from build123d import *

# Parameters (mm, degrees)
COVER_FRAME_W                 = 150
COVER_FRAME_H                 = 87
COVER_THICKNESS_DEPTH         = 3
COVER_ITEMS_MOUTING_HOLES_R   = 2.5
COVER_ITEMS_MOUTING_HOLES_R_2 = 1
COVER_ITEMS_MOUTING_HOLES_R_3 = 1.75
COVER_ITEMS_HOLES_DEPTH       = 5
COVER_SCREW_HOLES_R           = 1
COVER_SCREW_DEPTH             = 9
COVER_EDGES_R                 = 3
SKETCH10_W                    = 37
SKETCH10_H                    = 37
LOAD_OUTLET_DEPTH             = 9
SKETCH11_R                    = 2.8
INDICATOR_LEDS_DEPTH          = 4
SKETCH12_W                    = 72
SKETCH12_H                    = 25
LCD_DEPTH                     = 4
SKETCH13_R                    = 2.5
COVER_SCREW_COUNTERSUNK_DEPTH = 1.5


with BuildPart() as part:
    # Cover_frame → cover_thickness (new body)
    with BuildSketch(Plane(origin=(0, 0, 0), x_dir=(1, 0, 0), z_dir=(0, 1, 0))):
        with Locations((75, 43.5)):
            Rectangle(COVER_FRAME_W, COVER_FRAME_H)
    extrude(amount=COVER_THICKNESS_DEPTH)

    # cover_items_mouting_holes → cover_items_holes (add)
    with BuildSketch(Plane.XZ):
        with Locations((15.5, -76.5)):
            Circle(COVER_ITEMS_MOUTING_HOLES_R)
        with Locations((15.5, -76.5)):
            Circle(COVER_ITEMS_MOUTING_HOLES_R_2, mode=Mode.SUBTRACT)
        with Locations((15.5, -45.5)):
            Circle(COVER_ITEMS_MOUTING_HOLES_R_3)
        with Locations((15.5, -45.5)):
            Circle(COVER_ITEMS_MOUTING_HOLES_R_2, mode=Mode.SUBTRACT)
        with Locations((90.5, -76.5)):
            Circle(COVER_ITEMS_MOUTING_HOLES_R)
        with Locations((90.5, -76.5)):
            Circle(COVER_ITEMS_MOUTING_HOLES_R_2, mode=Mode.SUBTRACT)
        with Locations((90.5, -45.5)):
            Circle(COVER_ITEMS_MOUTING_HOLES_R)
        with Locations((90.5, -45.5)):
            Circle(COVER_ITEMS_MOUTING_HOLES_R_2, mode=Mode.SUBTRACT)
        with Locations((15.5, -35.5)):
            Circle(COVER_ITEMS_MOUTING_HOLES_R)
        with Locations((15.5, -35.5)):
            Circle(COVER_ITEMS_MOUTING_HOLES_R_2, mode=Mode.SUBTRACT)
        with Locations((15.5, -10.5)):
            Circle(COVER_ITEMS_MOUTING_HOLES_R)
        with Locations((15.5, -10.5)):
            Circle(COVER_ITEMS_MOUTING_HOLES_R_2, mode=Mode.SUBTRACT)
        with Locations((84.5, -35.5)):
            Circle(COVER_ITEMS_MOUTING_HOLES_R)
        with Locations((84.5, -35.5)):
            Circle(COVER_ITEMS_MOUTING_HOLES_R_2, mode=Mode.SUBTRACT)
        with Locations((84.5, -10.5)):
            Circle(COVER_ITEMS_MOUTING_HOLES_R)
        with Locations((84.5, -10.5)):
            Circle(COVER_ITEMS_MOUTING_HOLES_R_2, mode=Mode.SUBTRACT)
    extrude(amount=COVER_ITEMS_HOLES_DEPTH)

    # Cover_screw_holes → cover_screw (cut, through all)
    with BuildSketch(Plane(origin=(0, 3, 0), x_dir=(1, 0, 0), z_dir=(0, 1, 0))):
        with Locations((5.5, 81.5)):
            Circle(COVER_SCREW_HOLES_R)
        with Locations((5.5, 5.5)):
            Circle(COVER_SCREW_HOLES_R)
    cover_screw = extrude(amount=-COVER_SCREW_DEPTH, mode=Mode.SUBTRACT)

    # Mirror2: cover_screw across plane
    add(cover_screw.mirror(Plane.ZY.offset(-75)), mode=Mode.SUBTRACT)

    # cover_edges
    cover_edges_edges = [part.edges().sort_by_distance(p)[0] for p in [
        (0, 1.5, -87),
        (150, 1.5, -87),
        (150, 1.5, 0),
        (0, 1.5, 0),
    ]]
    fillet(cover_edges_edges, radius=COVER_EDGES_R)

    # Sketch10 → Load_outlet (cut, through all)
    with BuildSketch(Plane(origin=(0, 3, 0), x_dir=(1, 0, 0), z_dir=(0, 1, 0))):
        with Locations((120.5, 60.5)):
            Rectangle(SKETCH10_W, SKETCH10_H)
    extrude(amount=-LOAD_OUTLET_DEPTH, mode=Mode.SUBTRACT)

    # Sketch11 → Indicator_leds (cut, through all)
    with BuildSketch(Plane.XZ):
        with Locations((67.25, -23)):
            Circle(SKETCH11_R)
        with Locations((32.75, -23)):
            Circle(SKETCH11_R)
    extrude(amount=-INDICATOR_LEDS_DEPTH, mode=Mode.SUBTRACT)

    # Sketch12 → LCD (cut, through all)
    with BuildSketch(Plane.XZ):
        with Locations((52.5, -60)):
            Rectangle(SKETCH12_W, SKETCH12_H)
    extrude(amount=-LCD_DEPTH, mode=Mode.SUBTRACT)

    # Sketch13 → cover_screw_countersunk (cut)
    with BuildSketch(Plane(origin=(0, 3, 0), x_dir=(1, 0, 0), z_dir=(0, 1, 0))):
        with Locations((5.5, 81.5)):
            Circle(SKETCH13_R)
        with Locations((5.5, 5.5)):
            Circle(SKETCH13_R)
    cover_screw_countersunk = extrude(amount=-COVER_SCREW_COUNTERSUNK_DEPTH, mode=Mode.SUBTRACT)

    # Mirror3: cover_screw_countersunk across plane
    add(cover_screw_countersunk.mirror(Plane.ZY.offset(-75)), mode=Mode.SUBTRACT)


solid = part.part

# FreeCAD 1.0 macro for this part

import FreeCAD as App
import Part
import Sketcher


def edges_at(feature, points):
    """Names of the edges that pass closest to the given points."""
    edges = feature.Shape.Edges
    near = lambda p: min(range(len(edges)), key=lambda i: edges[i].distToShape(Part.Vertex(*p))[0])
    return sorted({f"Edge{near(p) + 1}" for p in points})


def add_polygon(sketch, points):
    """Adds a closed chain of lines whose ends are joined by coincident constraints."""
    first, n = sketch.GeometryCount, len(points)
    for a, b in zip(points, points[1:] + points[:1]):
        sketch.addGeometry(Part.LineSegment(App.Vector(*a, 0), App.Vector(*b, 0)), False)
    for i in range(n):
        sketch.addConstraint(Sketcher.Constraint("Coincident", first + i, 2, first + (i + 1) % n, 1))

doc = App.newDocument("Part")
body = doc.addObject("PartDesign::Body", "Body")

# Sketch on XZ plane
sketch1 = body.newObject("Sketcher::SketchObject", "Sketch")
sketch1.AttachmentSupport = (doc.getObject("XZ_Plane"), [""])
sketch1.MapMode = "FlatFace"
add_polygon(sketch1, [(0, -87), (0, 0), (150, 0), (150, -87)])  # lines 0-3
sketch1.addConstraint(Sketcher.Constraint("Vertical", 0))
sketch1.addConstraint(Sketcher.Constraint("Horizontal", 1))
sketch1.addConstraint(Sketcher.Constraint("Vertical", 2))
sketch1.addConstraint(Sketcher.Constraint("Horizontal", 3))
sketch1.addConstraint(Sketcher.Constraint("Coincident", 0, 2, -1, 1))
sketch1.addConstraint(Sketcher.Constraint("DistanceX", 1, 1, 1, 2, 150.0))
sketch1.addConstraint(Sketcher.Constraint("DistanceY", 0, 1, 0, 2, 87.0))
pad1 = body.newObject("PartDesign::Pad", "Pad")
pad1.Profile = sketch1
pad1.Length = 3
pad1.Reversed = True

# Sketch on XZ plane
sketch2 = body.newObject("Sketcher::SketchObject", "Sketch001")
sketch2.AttachmentSupport = (doc.getObject("XZ_Plane"), [""])
sketch2.MapMode = "FlatFace"
sketch2.addGeometry(Part.Circle(App.Vector(15.5, -76.5, 0), App.Vector(0, 0, 1), 2.5), False)
sketch2.addGeometry(Part.Circle(App.Vector(15.5, -76.5, 0), App.Vector(0, 0, 1), 1), False)
sketch2.addGeometry(Part.Circle(App.Vector(15.5, -45.5, 0), App.Vector(0, 0, 1), 1.8), False)
sketch2.addGeometry(Part.Circle(App.Vector(15.5, -45.5, 0), App.Vector(0, 0, 1), 1), False)
sketch2.addGeometry(Part.Circle(App.Vector(90.5, -76.5, 0), App.Vector(0, 0, 1), 2.5), False)
sketch2.addGeometry(Part.Circle(App.Vector(90.5, -76.5, 0), App.Vector(0, 0, 1), 1), False)
sketch2.addGeometry(Part.Circle(App.Vector(90.5, -45.5, 0), App.Vector(0, 0, 1), 2.5), False)
sketch2.addGeometry(Part.Circle(App.Vector(90.5, -45.5, 0), App.Vector(0, 0, 1), 1), False)
sketch2.addGeometry(Part.Circle(App.Vector(15.5, -35.5, 0), App.Vector(0, 0, 1), 2.5), False)
sketch2.addGeometry(Part.Circle(App.Vector(15.5, -35.5, 0), App.Vector(0, 0, 1), 1), False)
sketch2.addGeometry(Part.Circle(App.Vector(15.5, -10.5, 0), App.Vector(0, 0, 1), 2.5), False)
sketch2.addGeometry(Part.Circle(App.Vector(15.5, -10.5, 0), App.Vector(0, 0, 1), 1), False)
sketch2.addGeometry(Part.Circle(App.Vector(84.5, -35.5, 0), App.Vector(0, 0, 1), 2.5), False)
sketch2.addGeometry(Part.Circle(App.Vector(84.5, -35.5, 0), App.Vector(0, 0, 1), 1), False)
sketch2.addGeometry(Part.Circle(App.Vector(84.5, -10.5, 0), App.Vector(0, 0, 1), 2.5), False)
sketch2.addGeometry(Part.Circle(App.Vector(84.5, -10.5, 0), App.Vector(0, 0, 1), 1), False)
sketch2.addConstraint(Sketcher.Constraint("Coincident", 1, 3, 0, 3))
sketch2.addConstraint(Sketcher.Constraint("Coincident", 3, 3, 2, 3))
sketch2.addConstraint(Sketcher.Constraint("Coincident", 5, 3, 4, 3))
sketch2.addConstraint(Sketcher.Constraint("Coincident", 7, 3, 6, 3))
sketch2.addConstraint(Sketcher.Constraint("Coincident", 9, 3, 8, 3))
sketch2.addConstraint(Sketcher.Constraint("Coincident", 11, 3, 10, 3))
sketch2.addConstraint(Sketcher.Constraint("Coincident", 13, 3, 12, 3))
sketch2.addConstraint(Sketcher.Constraint("Coincident", 15, 3, 14, 3))
sketch2.addConstraint(Sketcher.Constraint("Equal", 1, 3))
sketch2.addConstraint(Sketcher.Constraint("Equal", 0, 4))
sketch2.addConstraint(Sketcher.Constraint("Equal", 3, 5))
sketch2.addConstraint(Sketcher.Constraint("Equal", 4, 6))
sketch2.addConstraint(Sketcher.Constraint("Equal", 5, 7))
sketch2.addConstraint(Sketcher.Constraint("Equal", 6, 8))
sketch2.addConstraint(Sketcher.Constraint("Equal", 7, 9))
sketch2.addConstraint(Sketcher.Constraint("Equal", 8, 10))
sketch2.addConstraint(Sketcher.Constraint("Equal", 9, 11))
sketch2.addConstraint(Sketcher.Constraint("Equal", 10, 12))
sketch2.addConstraint(Sketcher.Constraint("Equal", 11, 13))
sketch2.addConstraint(Sketcher.Constraint("Equal", 12, 14))
sketch2.addConstraint(Sketcher.Constraint("Equal", 13, 15))
sketch2.addConstraint(Sketcher.Constraint("Horizontal", 1, 3, 4, 3))
sketch2.addConstraint(Sketcher.Constraint("Horizontal", 3, 3, 6, 3))
sketch2.addConstraint(Sketcher.Constraint("Horizontal", 9, 3, 12, 3))
sketch2.addConstraint(Sketcher.Constraint("Horizontal", 11, 3, 14, 3))
sketch2.addConstraint(Sketcher.Constraint("Vertical", 1, 3, 2, 3))
sketch2.addConstraint(Sketcher.Constraint("Vertical", 5, 3, 6, 3))
sketch2.addConstraint(Sketcher.Constraint("Vertical", 3, 3, 8, 3))
sketch2.addConstraint(Sketcher.Constraint("Vertical", 9, 3, 10, 3))
sketch2.addConstraint(Sketcher.Constraint("Vertical", 13, 3, 14, 3))
sketch2.addConstraint(Sketcher.Constraint("Diameter", 0, 5.0))
sketch2.addConstraint(Sketcher.Constraint("Diameter", 1, 2.0))
sketch2.addConstraint(Sketcher.Constraint("Diameter", 2, 3.5))
sketch2.addConstraint(Sketcher.Constraint("DistanceY", 0, 3, 2, 3, 31.0))
sketch2.addConstraint(Sketcher.Constraint("DistanceX", 0, 3, 4, 3, 75.0))
sketch2.addConstraint(Sketcher.Constraint("DistanceY", 2, 3, 8, 3, 10.0))
sketch2.addConstraint(Sketcher.Constraint("DistanceY", 8, 3, 10, 3, 25.0))
sketch2.addConstraint(Sketcher.Constraint("DistanceX", 12, 3, 6, 3, 6.0))
sketch2.addConstraint(Sketcher.Constraint("DistanceX", -1, 1, 0, 3, 15.5))
sketch2.addConstraint(Sketcher.Constraint("DistanceY", 0, 3, -1, 1, 76.5))
pad2 = body.newObject("PartDesign::Pad", "Pad001")
pad2.Profile = sketch2
pad2.Length = 5

# Sketch on XZ plane
sketch3 = body.newObject("Sketcher::SketchObject", "Sketch002")
sketch3.AttachmentSupport = (doc.getObject("XZ_Plane"), [""])
sketch3.MapMode = "FlatFace"
sketch3.AttachmentOffset = App.Placement(App.Vector(0, 0, -3), App.Rotation())
sketch3.addGeometry(Part.Circle(App.Vector(5.5, -81.5, 0), App.Vector(0, 0, 1), 1), False)
sketch3.addGeometry(Part.Circle(App.Vector(5.5, -5.5, 0), App.Vector(0, 0, 1), 1), False)
sketch3.addConstraint(Sketcher.Constraint("Equal", 0, 1))
sketch3.addConstraint(Sketcher.Constraint("Vertical", 0, 3, 1, 3))
sketch3.addConstraint(Sketcher.Constraint("Diameter", 0, 2.0))
sketch3.addConstraint(Sketcher.Constraint("DistanceY", 0, 3, 1, 3, 76.0))
sketch3.addConstraint(Sketcher.Constraint("DistanceX", -1, 1, 0, 3, 5.5))
sketch3.addConstraint(Sketcher.Constraint("DistanceY", 0, 3, -1, 1, 81.5))
pocket1 = body.newObject("PartDesign::Pocket", "Pocket")
pocket1.Profile = sketch3
pocket1.Type = "ThroughAll"
pocket1.Reversed = True
doc.recompute()

datumplane = body.newObject("PartDesign::Plane", "DatumPlane")
datumplane.AttachmentSupport = (doc.getObject("YZ_Plane"), [""])
datumplane.MapMode = "FlatFace"
datumplane.AttachmentOffset = App.Placement(App.Vector(0, 0, 75), App.Rotation())
mirrored = body.newObject("PartDesign::Mirrored", "Mirrored")
mirrored.Originals = [pocket1]
mirrored.MirrorPlane = (datumplane, [""])
body.Tip = mirrored
doc.recompute()

fillet = body.newObject("PartDesign::Fillet", "Fillet")
fillet.Base = (mirrored, edges_at(mirrored, [
    (0, 1.5, -87),
    (150, 1.5, -87),
    (150, 1.5, 0),
    (0, 1.5, 0),
]))
fillet.Radius = 3

# Sketch on XZ plane
sketch4 = body.newObject("Sketcher::SketchObject", "Sketch003")
sketch4.AttachmentSupport = (doc.getObject("XZ_Plane"), [""])
sketch4.MapMode = "FlatFace"
sketch4.AttachmentOffset = App.Placement(App.Vector(0, 0, -3), App.Rotation())
add_polygon(sketch4, [(102, -79), (102, -42), (139, -42), (139, -79)])  # lines 0-3
sketch4.addConstraint(Sketcher.Constraint("Vertical", 0))
sketch4.addConstraint(Sketcher.Constraint("Horizontal", 1))
sketch4.addConstraint(Sketcher.Constraint("Vertical", 2))
sketch4.addConstraint(Sketcher.Constraint("Horizontal", 3))
sketch4.addConstraint(Sketcher.Constraint("Equal", 3, 0))
sketch4.addConstraint(Sketcher.Constraint("DistanceX", 1, 1, 1, 2, 37.0))
sketch4.addConstraint(Sketcher.Constraint("DistanceX", -1, 1, 0, 2, 102.0))
sketch4.addConstraint(Sketcher.Constraint("DistanceY", 0, 2, -1, 1, 42.0))
pocket2 = body.newObject("PartDesign::Pocket", "Pocket001")
pocket2.Profile = sketch4
pocket2.Type = "ThroughAll"
pocket2.Reversed = True

# Sketch on XZ plane
sketch5 = body.newObject("Sketcher::SketchObject", "Sketch004")
sketch5.AttachmentSupport = (doc.getObject("XZ_Plane"), [""])
sketch5.MapMode = "FlatFace"
sketch5.addGeometry(Part.Circle(App.Vector(67.2, -23, 0), App.Vector(0, 0, 1), 2.8), False)
sketch5.addGeometry(Part.Circle(App.Vector(32.8, -23, 0), App.Vector(0, 0, 1), 2.8), False)
sketch5.addConstraint(Sketcher.Constraint("Equal", 0, 1))
sketch5.addConstraint(Sketcher.Constraint("Horizontal", 0, 3, 1, 3))
sketch5.addConstraint(Sketcher.Constraint("Diameter", 0, 5.6))
sketch5.addConstraint(Sketcher.Constraint("DistanceY", 0, 3, -1, 1, 23.0))
sketch5.addConstraint(Sketcher.Constraint("DistanceX", 1, 3, 0, 3, 34.5))
sketch5.addConstraint(Sketcher.Constraint("DistanceX", -1, 1, 0, 3, 67.25))
pocket3 = body.newObject("PartDesign::Pocket", "Pocket002")
pocket3.Profile = sketch5
pocket3.Type = "ThroughAll"

# Sketch on XZ plane
sketch6 = body.newObject("Sketcher::SketchObject", "Sketch005")
sketch6.AttachmentSupport = (doc.getObject("XZ_Plane"), [""])
sketch6.MapMode = "FlatFace"
add_polygon(sketch6, [(16, -48), (16, -72), (88, -72), (88, -48)])  # lines 0-3
sketch6.addConstraint(Sketcher.Constraint("Vertical", 0))
sketch6.addConstraint(Sketcher.Constraint("Horizontal", 1))
sketch6.addConstraint(Sketcher.Constraint("Vertical", 2))
sketch6.addConstraint(Sketcher.Constraint("Horizontal", 3))
sketch6.addConstraint(Sketcher.Constraint("DistanceX", 1, 1, 1, 2, 72.0))
sketch6.addConstraint(Sketcher.Constraint("DistanceY", 0, 2, 0, 1, 25.0))
sketch6.addConstraint(Sketcher.Constraint("DistanceX", -1, 1, 0, 2, 16.5))
sketch6.addConstraint(Sketcher.Constraint("DistanceY", 0, 2, -1, 1, 72.5))
pocket4 = body.newObject("PartDesign::Pocket", "Pocket003")
pocket4.Profile = sketch6
pocket4.Type = "ThroughAll"

# Sketch on XZ plane
sketch7 = body.newObject("Sketcher::SketchObject", "Sketch006")
sketch7.AttachmentSupport = (doc.getObject("XZ_Plane"), [""])
sketch7.MapMode = "FlatFace"
sketch7.AttachmentOffset = App.Placement(App.Vector(0, 0, -3), App.Rotation())
sketch7.addGeometry(Part.Circle(App.Vector(5.5, -81.5, 0), App.Vector(0, 0, 1), 2.5), False)
sketch7.addGeometry(Part.Circle(App.Vector(5.5, -5.5, 0), App.Vector(0, 0, 1), 2.5), False)
sketch7.addConstraint(Sketcher.Constraint("Equal", 0, 1))
sketch7.addConstraint(Sketcher.Constraint("Vertical", 0, 3, 1, 3))
sketch7.addConstraint(Sketcher.Constraint("Diameter", 0, 5.0))
sketch7.addConstraint(Sketcher.Constraint("DistanceY", 0, 3, 1, 3, 76.0))
sketch7.addConstraint(Sketcher.Constraint("DistanceX", -1, 1, 0, 3, 5.5))
sketch7.addConstraint(Sketcher.Constraint("DistanceY", 0, 3, -1, 1, 81.5))
pocket5 = body.newObject("PartDesign::Pocket", "Pocket004")
pocket5.Profile = sketch7
pocket5.Length = 1.5
pocket5.Reversed = True
doc.recompute()

datumplane2 = body.newObject("PartDesign::Plane", "DatumPlane001")
datumplane2.AttachmentSupport = (doc.getObject("YZ_Plane"), [""])
datumplane2.MapMode = "FlatFace"
datumplane2.AttachmentOffset = App.Placement(App.Vector(0, 0, 75), App.Rotation())
mirrored2 = body.newObject("PartDesign::Mirrored", "Mirrored001")
mirrored2.Originals = [pocket5]
mirrored2.MirrorPlane = (datumplane2, [""])
body.Tip = mirrored2

doc.recompute()
